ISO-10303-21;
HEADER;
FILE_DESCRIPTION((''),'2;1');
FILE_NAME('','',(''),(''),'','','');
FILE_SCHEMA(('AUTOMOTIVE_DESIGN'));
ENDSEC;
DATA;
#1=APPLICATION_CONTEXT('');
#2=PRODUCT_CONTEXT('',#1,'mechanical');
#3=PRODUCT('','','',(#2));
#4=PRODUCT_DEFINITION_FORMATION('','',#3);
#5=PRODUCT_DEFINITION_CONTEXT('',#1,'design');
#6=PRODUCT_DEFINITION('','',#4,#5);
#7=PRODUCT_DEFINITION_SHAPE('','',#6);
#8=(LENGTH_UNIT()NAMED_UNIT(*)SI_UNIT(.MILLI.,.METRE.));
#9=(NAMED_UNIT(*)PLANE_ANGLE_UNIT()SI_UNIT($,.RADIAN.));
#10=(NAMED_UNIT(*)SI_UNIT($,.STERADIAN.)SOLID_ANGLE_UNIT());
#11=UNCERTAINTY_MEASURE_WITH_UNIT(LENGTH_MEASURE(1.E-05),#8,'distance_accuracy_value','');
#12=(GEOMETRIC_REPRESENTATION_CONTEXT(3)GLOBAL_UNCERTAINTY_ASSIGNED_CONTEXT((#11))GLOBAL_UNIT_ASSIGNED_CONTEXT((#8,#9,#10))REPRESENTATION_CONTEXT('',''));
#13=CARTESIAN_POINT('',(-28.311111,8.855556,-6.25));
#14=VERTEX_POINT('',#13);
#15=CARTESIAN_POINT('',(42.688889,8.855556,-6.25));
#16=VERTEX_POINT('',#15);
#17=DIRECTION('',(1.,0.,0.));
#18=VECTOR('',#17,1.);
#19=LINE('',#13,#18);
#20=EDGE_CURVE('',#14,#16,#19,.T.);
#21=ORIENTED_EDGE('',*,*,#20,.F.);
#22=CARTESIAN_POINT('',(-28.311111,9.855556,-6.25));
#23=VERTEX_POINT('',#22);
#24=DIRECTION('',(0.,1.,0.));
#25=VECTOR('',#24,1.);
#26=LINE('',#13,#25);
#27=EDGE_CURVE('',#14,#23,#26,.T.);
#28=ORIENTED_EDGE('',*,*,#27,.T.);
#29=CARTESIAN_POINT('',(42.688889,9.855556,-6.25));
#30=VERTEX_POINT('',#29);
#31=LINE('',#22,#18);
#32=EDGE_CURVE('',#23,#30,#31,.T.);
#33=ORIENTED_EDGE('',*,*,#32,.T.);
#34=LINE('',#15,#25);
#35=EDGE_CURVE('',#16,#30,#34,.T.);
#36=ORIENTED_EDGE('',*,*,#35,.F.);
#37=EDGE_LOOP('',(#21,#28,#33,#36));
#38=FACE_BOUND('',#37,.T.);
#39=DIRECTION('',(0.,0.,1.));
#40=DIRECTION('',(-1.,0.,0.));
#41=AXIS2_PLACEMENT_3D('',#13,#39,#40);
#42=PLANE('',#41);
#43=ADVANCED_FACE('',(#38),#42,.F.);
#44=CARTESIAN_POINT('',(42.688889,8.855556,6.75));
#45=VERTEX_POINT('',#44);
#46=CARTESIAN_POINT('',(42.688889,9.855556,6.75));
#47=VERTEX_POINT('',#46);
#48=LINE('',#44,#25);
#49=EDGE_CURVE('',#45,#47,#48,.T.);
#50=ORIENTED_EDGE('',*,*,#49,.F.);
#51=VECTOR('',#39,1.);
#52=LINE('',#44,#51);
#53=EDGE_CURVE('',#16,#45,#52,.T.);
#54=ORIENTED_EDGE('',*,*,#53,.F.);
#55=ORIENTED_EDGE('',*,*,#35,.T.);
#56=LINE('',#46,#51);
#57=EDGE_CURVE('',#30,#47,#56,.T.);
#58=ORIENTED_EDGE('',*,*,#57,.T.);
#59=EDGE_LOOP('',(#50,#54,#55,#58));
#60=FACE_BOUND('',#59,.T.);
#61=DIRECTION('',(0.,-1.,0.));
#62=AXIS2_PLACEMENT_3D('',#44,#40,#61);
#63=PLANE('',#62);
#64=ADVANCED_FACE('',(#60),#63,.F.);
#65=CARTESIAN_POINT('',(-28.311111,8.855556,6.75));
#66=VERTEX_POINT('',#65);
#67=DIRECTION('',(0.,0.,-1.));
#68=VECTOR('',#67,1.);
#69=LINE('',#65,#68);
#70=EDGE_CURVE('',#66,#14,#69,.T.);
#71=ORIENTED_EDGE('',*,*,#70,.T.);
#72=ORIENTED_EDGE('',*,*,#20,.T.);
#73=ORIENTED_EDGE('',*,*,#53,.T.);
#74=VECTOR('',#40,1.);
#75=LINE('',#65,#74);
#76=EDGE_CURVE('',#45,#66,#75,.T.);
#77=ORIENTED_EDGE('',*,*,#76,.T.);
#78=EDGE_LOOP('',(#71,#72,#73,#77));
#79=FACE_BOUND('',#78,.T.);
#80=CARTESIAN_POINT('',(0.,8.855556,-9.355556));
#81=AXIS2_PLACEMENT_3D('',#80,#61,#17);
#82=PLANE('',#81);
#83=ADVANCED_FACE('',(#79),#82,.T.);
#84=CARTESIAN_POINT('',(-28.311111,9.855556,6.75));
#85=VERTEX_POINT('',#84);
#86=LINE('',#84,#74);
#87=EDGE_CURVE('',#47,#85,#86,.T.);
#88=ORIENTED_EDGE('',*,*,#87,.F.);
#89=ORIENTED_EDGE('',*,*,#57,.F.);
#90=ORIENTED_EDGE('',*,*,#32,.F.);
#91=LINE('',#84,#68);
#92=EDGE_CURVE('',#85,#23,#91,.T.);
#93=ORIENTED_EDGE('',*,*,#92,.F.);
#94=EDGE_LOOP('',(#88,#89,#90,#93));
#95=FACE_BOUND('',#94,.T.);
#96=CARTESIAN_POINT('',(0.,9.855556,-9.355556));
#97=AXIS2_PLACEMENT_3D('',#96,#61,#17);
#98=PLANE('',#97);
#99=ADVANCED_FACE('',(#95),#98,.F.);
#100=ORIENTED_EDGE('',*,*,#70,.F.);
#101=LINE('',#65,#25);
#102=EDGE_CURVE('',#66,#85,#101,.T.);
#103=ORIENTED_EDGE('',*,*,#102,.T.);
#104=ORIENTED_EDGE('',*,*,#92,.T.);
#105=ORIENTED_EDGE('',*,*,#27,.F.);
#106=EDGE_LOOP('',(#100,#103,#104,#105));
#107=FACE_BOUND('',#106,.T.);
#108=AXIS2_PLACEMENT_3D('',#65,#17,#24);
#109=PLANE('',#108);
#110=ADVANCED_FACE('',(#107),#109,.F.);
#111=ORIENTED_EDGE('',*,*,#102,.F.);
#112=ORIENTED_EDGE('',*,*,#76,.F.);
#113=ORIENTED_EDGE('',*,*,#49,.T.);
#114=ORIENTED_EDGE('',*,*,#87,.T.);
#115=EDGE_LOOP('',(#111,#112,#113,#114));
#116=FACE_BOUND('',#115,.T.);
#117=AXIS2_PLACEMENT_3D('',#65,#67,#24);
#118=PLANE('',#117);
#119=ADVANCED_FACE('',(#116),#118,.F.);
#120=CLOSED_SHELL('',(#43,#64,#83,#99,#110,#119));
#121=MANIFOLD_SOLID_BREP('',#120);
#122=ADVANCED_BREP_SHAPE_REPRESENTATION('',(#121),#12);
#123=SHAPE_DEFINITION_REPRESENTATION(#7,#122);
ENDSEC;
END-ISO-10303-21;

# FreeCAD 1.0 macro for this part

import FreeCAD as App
import Part
import Sketcher

V = App.Vector
Q = App.Units.Quantity

doc = App.newDocument("Part")
body = doc.addObject("PartDesign::Body", "Body")

sketch1 = body.newObject("Sketcher::SketchObject", "Sketch")
sketch1.AttachmentSupport = (doc.getObject("XY_Plane"), [""])
sketch1.MapMode = "FlatFace"
sketch1.addGeometry([
    Part.LineSegment(V(-28, 16, 0), V(-28, 3, 0)),
    Part.LineSegment(V(-28, 3, 0), V(43, 3, 0)),
    Part.LineSegment(V(43, 3, 0), V(43, 16, 0)),
    Part.LineSegment(V(43, 16, 0), V(-28, 16, 0)),
], False)
sketch1.addConstraint([
    Sketcher.Constraint("Coincident", 0, 2, 1, 1),
    Sketcher.Constraint("Coincident", 1, 2, 2, 1),
    Sketcher.Constraint("Coincident", 2, 2, 3, 1),
    Sketcher.Constraint("Coincident", 3, 2, 0, 1),
    Sketcher.Constraint("Vertical", 0),
    Sketcher.Constraint("Horizontal", 1),
    Sketcher.Constraint("Vertical", 2),
    Sketcher.Constraint("Horizontal", 3),
    Sketcher.Constraint("DistanceX", 1, 1, 1, 2, Q("71 mm")),
    Sketcher.Constraint("DistanceY", 0, 2, 0, 1, Q("13 mm")),
    Sketcher.Constraint("DistanceX", 0, 2, -1, 1, Q("28.311111 mm")),
    Sketcher.Constraint("DistanceY", -1, 1, 0, 2, Q("3.105556 mm")),
])
pad1 = body.newObject("PartDesign::Pad", "Pad")
pad1.Profile = sketch1
pad1.Length = 1
body2 = doc.addObject("PartDesign::Body", "Body001")
doc.recompute()

body.Placement = App.Placement(V(0, 9.855556, -9.355556), App.Rotation(V(1, 0, 0), 90))
boolean = body2.newObject("PartDesign::Boolean", "Boolean")
boolean.Type = "Fuse"
boolean.addObjects([body])

doc.recompute()
